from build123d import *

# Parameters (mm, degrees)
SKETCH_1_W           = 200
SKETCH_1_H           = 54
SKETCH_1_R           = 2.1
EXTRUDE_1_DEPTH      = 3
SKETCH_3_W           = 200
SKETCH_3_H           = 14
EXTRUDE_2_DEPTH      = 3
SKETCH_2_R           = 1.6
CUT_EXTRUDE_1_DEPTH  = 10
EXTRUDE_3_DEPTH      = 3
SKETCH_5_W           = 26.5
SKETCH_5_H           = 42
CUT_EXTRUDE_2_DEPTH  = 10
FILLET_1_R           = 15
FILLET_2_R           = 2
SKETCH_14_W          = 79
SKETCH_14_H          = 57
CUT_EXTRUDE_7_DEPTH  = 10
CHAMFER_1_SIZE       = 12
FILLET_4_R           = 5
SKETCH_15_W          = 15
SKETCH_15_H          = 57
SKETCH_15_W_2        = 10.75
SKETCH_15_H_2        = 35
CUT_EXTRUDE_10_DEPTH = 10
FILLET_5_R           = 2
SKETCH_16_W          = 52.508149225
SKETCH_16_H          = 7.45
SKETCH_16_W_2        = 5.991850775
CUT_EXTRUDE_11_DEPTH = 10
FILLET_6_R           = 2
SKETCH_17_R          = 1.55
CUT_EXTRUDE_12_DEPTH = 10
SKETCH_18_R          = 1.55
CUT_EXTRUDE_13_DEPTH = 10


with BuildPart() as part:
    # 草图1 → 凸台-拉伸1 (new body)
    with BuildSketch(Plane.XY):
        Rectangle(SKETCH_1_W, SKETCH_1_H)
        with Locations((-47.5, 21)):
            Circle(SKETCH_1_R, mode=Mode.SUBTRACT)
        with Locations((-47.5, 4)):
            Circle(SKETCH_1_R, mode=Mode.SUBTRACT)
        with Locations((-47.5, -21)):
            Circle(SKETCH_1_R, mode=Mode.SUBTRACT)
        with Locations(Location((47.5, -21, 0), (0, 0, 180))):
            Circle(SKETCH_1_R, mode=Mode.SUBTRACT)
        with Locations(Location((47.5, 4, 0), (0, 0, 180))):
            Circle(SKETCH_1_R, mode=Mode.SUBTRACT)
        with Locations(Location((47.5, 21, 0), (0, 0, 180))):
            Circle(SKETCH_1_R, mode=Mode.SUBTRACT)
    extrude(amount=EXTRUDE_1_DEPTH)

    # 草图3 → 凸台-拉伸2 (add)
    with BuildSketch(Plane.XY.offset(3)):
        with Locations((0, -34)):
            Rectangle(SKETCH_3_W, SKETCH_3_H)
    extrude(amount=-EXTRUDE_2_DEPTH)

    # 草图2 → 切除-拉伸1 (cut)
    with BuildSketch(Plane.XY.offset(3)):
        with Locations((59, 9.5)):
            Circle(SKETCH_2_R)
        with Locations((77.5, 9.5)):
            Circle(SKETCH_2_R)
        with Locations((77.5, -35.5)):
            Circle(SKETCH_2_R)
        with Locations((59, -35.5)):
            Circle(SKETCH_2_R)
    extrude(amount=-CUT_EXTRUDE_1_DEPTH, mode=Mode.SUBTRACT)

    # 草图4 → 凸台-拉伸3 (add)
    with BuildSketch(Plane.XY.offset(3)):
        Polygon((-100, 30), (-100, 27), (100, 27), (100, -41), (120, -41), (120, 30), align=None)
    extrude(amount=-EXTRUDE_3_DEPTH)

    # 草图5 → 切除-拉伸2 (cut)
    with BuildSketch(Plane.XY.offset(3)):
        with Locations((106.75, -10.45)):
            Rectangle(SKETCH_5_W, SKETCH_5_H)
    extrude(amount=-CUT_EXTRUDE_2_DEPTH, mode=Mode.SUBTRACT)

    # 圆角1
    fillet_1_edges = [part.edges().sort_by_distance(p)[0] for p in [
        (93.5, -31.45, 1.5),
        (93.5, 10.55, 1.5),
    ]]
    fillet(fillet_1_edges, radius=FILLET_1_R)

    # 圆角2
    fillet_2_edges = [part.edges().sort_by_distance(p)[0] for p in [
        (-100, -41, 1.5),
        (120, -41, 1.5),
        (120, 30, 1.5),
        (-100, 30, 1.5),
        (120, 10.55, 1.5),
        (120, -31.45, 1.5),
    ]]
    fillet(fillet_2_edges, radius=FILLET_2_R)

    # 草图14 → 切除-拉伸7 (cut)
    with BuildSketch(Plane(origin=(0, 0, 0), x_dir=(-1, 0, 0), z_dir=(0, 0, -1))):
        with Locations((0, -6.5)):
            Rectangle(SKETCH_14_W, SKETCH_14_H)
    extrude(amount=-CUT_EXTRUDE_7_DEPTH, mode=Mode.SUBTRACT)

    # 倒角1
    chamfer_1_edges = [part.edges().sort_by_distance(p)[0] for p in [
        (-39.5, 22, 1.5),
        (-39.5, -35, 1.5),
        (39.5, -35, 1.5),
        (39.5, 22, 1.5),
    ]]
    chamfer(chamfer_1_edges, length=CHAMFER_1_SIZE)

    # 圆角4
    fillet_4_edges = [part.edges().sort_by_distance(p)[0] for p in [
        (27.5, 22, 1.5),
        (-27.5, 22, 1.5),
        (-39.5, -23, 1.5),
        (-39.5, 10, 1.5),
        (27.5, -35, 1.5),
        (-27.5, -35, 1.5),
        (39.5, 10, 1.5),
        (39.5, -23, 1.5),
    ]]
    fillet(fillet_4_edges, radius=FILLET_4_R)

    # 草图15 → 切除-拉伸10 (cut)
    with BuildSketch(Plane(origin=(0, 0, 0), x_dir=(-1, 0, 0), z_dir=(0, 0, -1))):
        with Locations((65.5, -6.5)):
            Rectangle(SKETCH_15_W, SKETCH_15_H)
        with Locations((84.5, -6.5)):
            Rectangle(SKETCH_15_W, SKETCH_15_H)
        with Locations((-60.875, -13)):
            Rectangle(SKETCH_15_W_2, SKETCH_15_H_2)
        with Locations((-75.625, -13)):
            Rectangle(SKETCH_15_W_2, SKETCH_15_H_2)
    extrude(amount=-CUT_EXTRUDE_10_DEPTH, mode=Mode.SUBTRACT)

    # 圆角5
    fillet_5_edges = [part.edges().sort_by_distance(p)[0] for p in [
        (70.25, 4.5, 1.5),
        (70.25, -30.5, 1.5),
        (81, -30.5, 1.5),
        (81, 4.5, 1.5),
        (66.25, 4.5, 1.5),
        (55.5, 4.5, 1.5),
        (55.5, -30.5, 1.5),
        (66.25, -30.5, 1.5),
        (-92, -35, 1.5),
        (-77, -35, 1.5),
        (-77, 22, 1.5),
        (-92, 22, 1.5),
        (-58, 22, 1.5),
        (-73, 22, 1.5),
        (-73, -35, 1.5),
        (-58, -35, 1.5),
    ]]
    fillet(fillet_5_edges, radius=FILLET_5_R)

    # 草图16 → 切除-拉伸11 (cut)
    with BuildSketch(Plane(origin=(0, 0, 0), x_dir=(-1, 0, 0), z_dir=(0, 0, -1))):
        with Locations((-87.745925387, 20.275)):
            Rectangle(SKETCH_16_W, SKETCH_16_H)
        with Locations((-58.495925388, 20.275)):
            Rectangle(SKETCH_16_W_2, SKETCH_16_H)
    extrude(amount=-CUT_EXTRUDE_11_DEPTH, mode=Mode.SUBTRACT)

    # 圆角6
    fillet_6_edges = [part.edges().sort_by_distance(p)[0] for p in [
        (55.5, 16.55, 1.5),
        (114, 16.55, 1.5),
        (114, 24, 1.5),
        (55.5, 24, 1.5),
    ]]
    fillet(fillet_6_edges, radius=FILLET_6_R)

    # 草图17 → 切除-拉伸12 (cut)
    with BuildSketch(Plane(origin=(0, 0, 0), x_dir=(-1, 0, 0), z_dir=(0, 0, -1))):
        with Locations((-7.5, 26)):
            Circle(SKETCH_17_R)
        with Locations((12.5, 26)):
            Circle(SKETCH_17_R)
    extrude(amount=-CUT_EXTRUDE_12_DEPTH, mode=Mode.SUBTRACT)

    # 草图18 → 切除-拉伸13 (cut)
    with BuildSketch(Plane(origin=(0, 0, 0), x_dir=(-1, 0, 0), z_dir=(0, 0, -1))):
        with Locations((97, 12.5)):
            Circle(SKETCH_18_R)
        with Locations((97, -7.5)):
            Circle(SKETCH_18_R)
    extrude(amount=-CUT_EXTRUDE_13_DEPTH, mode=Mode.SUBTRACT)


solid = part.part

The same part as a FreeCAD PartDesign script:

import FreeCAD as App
import Part
import Sketcher
from FreeCAD import Vector
Q = App.Units.Quantity


def edges_at(feature, points):
    """Names of the edges that pass closest to the given points."""
    edges = feature.Shape.Edges
    near = lambda p: min(range(len(edges)), key=lambda i: edges[i].distToShape(Part.Vertex(*p))[0])
    return sorted({f"Edge{near(p) + 1}" for p in points})


def add_polygon(sketch, points):
    """Adds a closed chain of lines whose ends are joined by coincident constraints."""
    first, n = sketch.GeometryCount, len(points)
    for a, b in zip(points, points[1:] + points[:1]):
        sketch.addGeometry(Part.LineSegment(App.Vector(*a, 0), App.Vector(*b, 0)), False)
    for i in range(n):
        sketch.addConstraint(Sketcher.Constraint("Coincident", first + i, 2, first + (i + 1) % n, 1))

doc = App.newDocument("Part")
params = doc.addObject("Spreadsheet::Sheet", "Params")
for row, (alias, value) in enumerate([
    ("sketch1_diameter", "4.2 mm"),
    ("sketch1_width", "200 mm"),
    ("sketch1_height", "54 mm"),
    ("pad1_length", "3 mm"),
    ("sketch2_width", "200 mm"),
    ("sketch2_height", "14 mm"),
    ("pad2_length", "3 mm"),
    ("sketch3_diameter", "3.2 mm"),
    ("pocket1_length", "10 mm"),
    ("sketch4_width", "200 mm"),
    ("sketch4_width2", "20 mm"),
    ("sketch4_height", "3 mm"),
    ("sketch4_height2", "68 mm"),
    ("pad3_length", "3 mm"),
    ("sketch5_height", "42 mm"),
    ("sketch5_width", "26.5 mm"),
    ("pocket2_length", "10 mm"),
    ("fillet_radius", "15 mm"),
    ("fillet2_radius", "2 mm"),
    ("sketch6_width", "79 mm"),
    ("sketch6_height", "57 mm"),
    ("pocket3_length", "10 mm"),
    ("chamfer_size", "12 mm"),
    ("fillet3_radius", "5 mm"),
    ("sketch7_width", "15 mm"),
    ("sketch7_height", "57 mm"),
    ("sketch7_height2", "35 mm"),
    ("sketch7_width2", "10.75 mm"),
    ("pocket4_length", "10 mm"),
    ("fillet4_radius", "2 mm"),
    ("sketch8_width", "58.5 mm"),
    ("sketch8_height", "7.45 mm"),
    ("pocket5_length", "10 mm"),
    ("fillet5_radius", "2 mm"),
    ("sketch9_diameter", "3.1 mm"),
    ("pocket6_length", "10 mm"),
    ("sketch10_diameter", "3.1 mm"),
    ("pocket7_length", "10 mm"),
], start=1):
    params.set(f"A{row}", alias)
    params.set(f"B{row}", "=" + value)
    params.setAlias(f"B{row}", alias)

body = doc.addObject("PartDesign::Body", "Body")

sketch1 = doc.addObject("Sketcher::SketchObject", "Sketch")
body.addObject(sketch1)
sketch1.AttachmentSupport = (doc.XY_Plane, [""])
sketch1.MapMode = "FlatFace"
add_polygon(sketch1, [(-100, 27), (-100, -27), (100, -27), (100, 27)])
sketch1.addGeometry(Part.Circle(Vector(-47.5, -21, 0), Vector(0, 0, 1), 2.1), False)
sketch1.addGeometry(Part.Circle(Vector(47.5, -21, 0), Vector(0, 0, 1), 2.1), False)
sketch1.addGeometry(Part.Circle(Vector(-47.5, 4, 0), Vector(0, 0, 1), 2.1), False)
sketch1.addGeometry(Part.Circle(Vector(-47.5, 21, 0), Vector(0, 0, 1), 2.1), False)
sketch1.addGeometry(Part.Circle(Vector(47.5, 4, 0), Vector(0, 0, 1), 2.1), False)
sketch1.addGeometry(Part.Circle(Vector(47.5, 21, 0), Vector(0, 0, 1), 2.1), False)
sketch1.addConstraint([
    Sketcher.Constraint("Vertical", 0),
    Sketcher.Constraint("Horizontal", 1),
    Sketcher.Constraint("Vertical", 2),
    Sketcher.Constraint("Horizontal", 3),
    Sketcher.Constraint("Equal", 4, 5),
    Sketcher.Constraint("Equal", 5, 6),
    Sketcher.Constraint("Equal", 6, 7),
    Sketcher.Constraint("Equal", 7, 8),
    Sketcher.Constraint("Equal", 8, 9),
    Sketcher.Constraint("Symmetric", 5, 3, 7, 3, -1, 1),
    Sketcher.Constraint("Symmetric", 4, 3, 9, 3, -1, 1),
    Sketcher.Constraint("Symmetric", 0, 2, 2, 2, -1, 1),
    Sketcher.Constraint("Symmetric", 4, 3, 5, 3, -2),
    Sketcher.Constraint("Symmetric", 6, 3, 8, 3, -2),
    Sketcher.Constraint("Vertical", 4, 3, 6, 3),
    Sketcher.Constraint("Diameter", 4, Q("4.2 mm")),
    Sketcher.Constraint("DistanceX", 1, 1, 1, 2, Q("200 mm")),
    Sketcher.Constraint("DistanceY", 0, 2, 0, 1, Q("54 mm")),
    Sketcher.Constraint("DistanceY", 4, 3, -1, 1, Q("21 mm")),
    Sketcher.Constraint("DistanceY", -1, 1, 6, 3, Q("4 mm")),
    Sketcher.Constraint("DistanceX", 4, 3, 5, 3, Q("95 mm")),
])
sketch1.setExpression("Constraints[19]", "Params.sketch1_diameter")
sketch1.setExpression("Constraints[20]", "Params.sketch1_width")
sketch1.setExpression("Constraints[21]", "Params.sketch1_height")
pad1 = doc.addObject("PartDesign::Pad", "Pad")
body.addObject(pad1)
pad1.Profile = sketch1
pad1.setExpression("Length", "Params.pad1_length")

sketch2 = doc.addObject("Sketcher::SketchObject", "Sketch001")
body.addObject(sketch2)
sketch2.AttachmentSupport = (doc.XY_Plane, [""])
sketch2.MapMode = "FlatFace"
sketch2.AttachmentOffset = App.Placement(Vector(0, 0, 3), App.Rotation())
add_polygon(sketch2, [(-100, -27), (-100, -41), (100, -41), (100, -27)])
sketch2.addConstraint([
    Sketcher.Constraint("Vertical", 0),
    Sketcher.Constraint("Horizontal", 1),
    Sketcher.Constraint("Vertical", 2),
    Sketcher.Constraint("Horizontal", 3),
    Sketcher.Constraint("DistanceX", 1, 1, 1, 2, Q("200 mm")),
    Sketcher.Constraint("DistanceY", 0, 2, 0, 1, Q("14 mm")),
    Sketcher.Constraint("DistanceX", 0, 2, -1, 1, Q("100 mm")),
    Sketcher.Constraint("DistanceY", 0, 2, -1, 1, Q("41 mm")),
])
sketch2.setExpression("Constraints[8]", "Params.sketch2_width")
sketch2.setExpression("Constraints[9]", "Params.sketch2_height")
pad2 = doc.addObject("PartDesign::Pad", "Pad001")
body.addObject(pad2)
pad2.Profile = sketch2
pad2.setExpression("Length", "Params.pad2_length")
pad2.Reversed = True

sketch3 = doc.addObject("Sketcher::SketchObject", "Sketch002")
body.addObject(sketch3)
sketch3.AttachmentSupport = (doc.XY_Plane, [""])
sketch3.MapMode = "FlatFace"
sketch3.AttachmentOffset = App.Placement(Vector(0, 0, 3), App.Rotation())
sketch3.addGeometry([
    Part.Circle(Vector(59, 9.5, 0), Vector(0, 0, 1), 1.6),
    Part.Circle(Vector(77.5, 9.5, 0), Vector(0, 0, 1), 1.6),
    Part.Circle(Vector(77.5, -35.5, 0), Vector(0, 0, 1), 1.6),
    Part.Circle(Vector(59, -35.5, 0), Vector(0, 0, 1), 1.6),
], False)
sketch3.addConstraint([
    Sketcher.Constraint("Equal", 0, 1),
    Sketcher.Constraint("Equal", 1, 2),
    Sketcher.Constraint("Equal", 2, 3),
    Sketcher.Constraint("Horizontal", 0, 3, 1, 3),
    Sketcher.Constraint("Horizontal", 2, 3, 3, 3),
    Sketcher.Constraint("Vertical", 1, 3, 2, 3),
    Sketcher.Constraint("Vertical", 0, 3, 3, 3),
    Sketcher.Constraint("Diameter", 0, Q("3.2 mm")),
    Sketcher.Constraint("DistanceX", -1, 1, 0, 3, Q("59 mm")),
    Sketcher.Constraint("DistanceY", 2, 3, 1, 3, Q("45 mm")),
    Sketcher.Constraint("DistanceY", -1, 1, 0, 3, Q("9.5 mm")),
    Sketcher.Constraint("DistanceX", -1, 1, 1, 3, Q("77.5 mm")),
])
sketch3.setExpression("Constraints[7]", "Params.sketch3_diameter")
pocket1 = doc.addObject("PartDesign::Pocket", "Pocket")
body.addObject(pocket1)
pocket1.Profile = sketch3
pocket1.setExpression("Length", "Params.pocket1_length")

sketch4 = doc.addObject("Sketcher::SketchObject", "Sketch003")
body.addObject(sketch4)
sketch4.AttachmentSupport = (doc.XY_Plane, [""])
sketch4.MapMode = "FlatFace"
sketch4.AttachmentOffset = App.Placement(Vector(0, 0, 3), App.Rotation())
add_polygon(sketch4, [(-100, 30), (-100, 27), (100, 27), (100, -41), (120, -41), (120, 30)])
sketch4.addConstraint([
    Sketcher.Constraint("Vertical", 0),
    Sketcher.Constraint("Horizontal", 1),
    Sketcher.Constraint("Vertical", 2),
    Sketcher.Constraint("Horizontal", 3),
    Sketcher.Constraint("Vertical", 4),
    Sketcher.Constraint("Horizontal", 5),
    Sketcher.Constraint("DistanceX", 1, 1, 1, 2, Q("200 mm")),
    Sketcher.Constraint("DistanceX", 3, 1, 3, 2, Q("20 mm")),
    Sketcher.Constraint("DistanceY", 0, 2, 0, 1, Q("3 mm")),
    Sketcher.Constraint("DistanceY", 2, 2, 2, 1, Q("68 mm")),
    Sketcher.Constraint("DistanceX", 0, 2, -1, 1, Q("100 mm")),
    Sketcher.Constraint("DistanceY", -1, 1, 0, 2, Q("27 mm")),
])
sketch4.setExpression("Constraints[12]", "Params.sketch4_width")
sketch4.setExpression("Constraints[13]", "Params.sketch4_width2")
sketch4.setExpression("Constraints[14]", "Params.sketch4_height")
sketch4.setExpression("Constraints[15]", "Params.sketch4_height2")
pad3 = doc.addObject("PartDesign::Pad", "Pad002")
body.addObject(pad3)
pad3.Profile = sketch4
pad3.setExpression("Length", "Params.pad3_length")
pad3.Reversed = True

sketch5 = doc.addObject("Sketcher::SketchObject", "Sketch004")
body.addObject(sketch5)
sketch5.AttachmentSupport = (doc.XY_Plane, [""])
sketch5.MapMode = "FlatFace"
sketch5.AttachmentOffset = App.Placement(Vector(0, 0, 3), App.Rotation())
add_polygon(sketch5, [(94, 11), (94, -31), (120, -31), (120, 11)])
sketch5.addConstraint([
    Sketcher.Constraint("Vertical", 0),
    Sketcher.Constraint("Horizontal", 1),
    Sketcher.Constraint("Vertical", 2),
    Sketcher.Constraint("Horizontal", 3),
    Sketcher.Constraint("DistanceY", 0, 2, 0, 1, Q("42 mm")),
    Sketcher.Constraint("DistanceX", 1, 1, 1, 2, Q("26.5 mm")),
    Sketcher.Constraint("DistanceX", -1, 1, 1, 2, Q("120 mm")),
    Sketcher.Constraint("DistanceY", 0, 2, -1, 1, Q("31.45 mm")),
])
sketch5.setExpression("Constraints[8]", "Params.sketch5_height")
sketch5.setExpression("Constraints[9]", "Params.sketch5_width")
pocket2 = doc.addObject("PartDesign::Pocket", "Pocket001")
body.addObject(pocket2)
pocket2.Profile = sketch5
pocket2.setExpression("Length", "Params.pocket2_length")
doc.recompute()

fillet = doc.addObject("PartDesign::Fillet", "Fillet")
body.addObject(fillet)
fillet.Base = (pocket2, edges_at(pocket2, [(93.5, -31.45, 1.5), (93.5, 10.55, 1.5)]))
fillet.setExpression("Radius", "Params.fillet_radius")
doc.recompute()

fillet2 = doc.addObject("PartDesign::Fillet", "Fillet001")
body.addObject(fillet2)
fillet2.Base = (fillet, edges_at(fillet, [
    (-100, -41, 1.5),
    (120, -41, 1.5),
    (120, 30, 1.5),
    (-100, 30, 1.5),
    (120, 10.55, 1.5),
    (120, -31.45, 1.5),
]))
fillet2.setExpression("Radius", "Params.fillet2_radius")

sketch6 = doc.addObject("Sketcher::SketchObject", "Sketch005")
body.addObject(sketch6)
sketch6.AttachmentSupport = (doc.XY_Plane, [""])
sketch6.MapMode = "FlatFace"
add_polygon(sketch6, [(40, 22), (40, -35), (-40, -35), (-40, 22)])
sketch6.addConstraint([
    Sketcher.Constraint("Vertical", 0),
    Sketcher.Constraint("Horizontal", 1),
    Sketcher.Constraint("Vertical", 2),
    Sketcher.Constraint("Horizontal", 3),
    Sketcher.Constraint("DistanceX", 1, 2, 1, 1, Q("79 mm")),
    Sketcher.Constraint("DistanceY", 0, 2, 0, 1, Q("57 mm")),
    Sketcher.Constraint("DistanceY", 0, 2, -1, 1, Q("35 mm")),
    Sketcher.Constraint("DistanceX", -1, 1, 0, 2, Q("39.5 mm")),
])
sketch6.setExpression("Constraints[8]", "Params.sketch6_width")
sketch6.setExpression("Constraints[9]", "Params.sketch6_height")
pocket3 = doc.addObject("PartDesign::Pocket", "Pocket002")
body.addObject(pocket3)
pocket3.Profile = sketch6
pocket3.setExpression("Length", "Params.pocket3_length")
pocket3.Reversed = True
doc.recompute()

chamfer = doc.addObject("PartDesign::Chamfer", "Chamfer")
body.addObject(chamfer)
chamfer.Base = (pocket3, edges_at(pocket3, [
    (-39.5, 22, 1.5),
    (-39.5, -35, 1.5),
    (39.5, -35, 1.5),
    (39.5, 22, 1.5),
]))
chamfer.setExpression("Size", "Params.chamfer_size")
doc.recompute()

fillet3 = doc.addObject("PartDesign::Fillet", "Fillet002")
body.addObject(fillet3)
fillet3.Base = (chamfer, edges_at(chamfer, [
    (27.5, 22, 1.5),
    (-27.5, 22, 1.5),
    (-39.5, -23, 1.5),
    (-39.5, 10, 1.5),
    (27.5, -35, 1.5),
    (-27.5, -35, 1.5),
    (39.5, 10, 1.5),
    (39.5, -23, 1.5),
]))
fillet3.setExpression("Radius", "Params.fillet3_radius")

sketch7 = doc.addObject("Sketcher::SketchObject", "Sketch006")
body.addObject(sketch7)
sketch7.AttachmentSupport = (doc.XY_Plane, [""])
sketch7.MapMode = "FlatFace"
add_polygon(sketch7, [(-58, 22), (-58, -35), (-73, -35), (-73, 22)])
add_polygon(sketch7, [(-77, 22), (-77, -35), (-92, -35), (-92, 22)])
add_polygon(sketch7, [(66, 4), (66, -30), (56, -30), (56, 4)])
add_polygon(sketch7, [(81, 4), (81, -30), (70, -30), (70, 4)])
sketch7.addConstraint([
    Sketcher.Constraint("Vertical", 0),
    Sketcher.Constraint("Horizontal", 1),
    Sketcher.Constraint("Vertical", 2),
    Sketcher.Constraint("Horizontal", 3),
    Sketcher.Constraint("Vertical", 4),
    Sketcher.Constraint("Horizontal", 5),
    Sketcher.Constraint("Vertical", 6),
    Sketcher.Constraint("Horizontal", 7),
    Sketcher.Constraint("Vertical", 8),
    Sketcher.Constraint("Horizontal", 9),
    Sketcher.Constraint("Vertical", 10),
    Sketcher.Constraint("Horizontal", 11),
    Sketcher.Constraint("Vertical", 12),
    Sketcher.Constraint("Horizontal", 13),
    Sketcher.Constraint("Vertical", 14),
    Sketcher.Constraint("Horizontal", 15),
    Sketcher.Constraint("Horizontal", 1, 2, 4, 2),
    Sketcher.Constraint("Horizontal", 3, 2, 6, 2),
    Sketcher.Constraint("Horizontal", 9, 2, 12, 2),
    Sketcher.Constraint("Horizontal", 11, 2, 14, 2),
    Sketcher.Constraint("Equal", 3, 5),
    Sketcher.Constraint("Equal", 11, 13),
    Sketcher.Constraint("DistanceX", 1, 2, 1, 1, Q("15 mm")),
    Sketcher.Constraint("DistanceY", 0, 2, 0, 1, Q("57 mm")),
    Sketcher.Constraint("DistanceY", 8, 2, 8, 1, Q("35 mm")),
    Sketcher.Constraint("DistanceX", 0, 2, -1, 1, Q("58 mm")),
    Sketcher.Constraint("DistanceY", 0, 2, -1, 1, Q("35 mm")),
    Sketcher.Constraint("DistanceX", 4, 2, -1, 1, Q("77 mm")),
    Sketcher.Constraint("DistanceX", -1, 1, 12, 2, Q("81 mm")),
    Sketcher.Constraint("DistanceX", 8, 2, 13, 2, Q("4 mm")),
    Sketcher.Constraint("DistanceX", 9, 2, 9, 1, Q("10.75 mm")),
    Sketcher.Constraint("DistanceY", 8, 2, -1, 1, Q("30.5 mm")),
])
sketch7.setExpression("Constraints[38]", "Params.sketch7_width")
sketch7.setExpression("Constraints[39]", "Params.sketch7_height")
sketch7.setExpression("Constraints[40]", "Params.sketch7_height2")
sketch7.setExpression("Constraints[46]", "Params.sketch7_width2")
pocket4 = doc.addObject("PartDesign::Pocket", "Pocket003")
body.addObject(pocket4)
pocket4.Profile = sketch7
pocket4.setExpression("Length", "Params.pocket4_length")
pocket4.Reversed = True
doc.recompute()

fillet4 = doc.addObject("PartDesign::Fillet", "Fillet003")
body.addObject(fillet4)
fillet4.Base = (pocket4, edges_at(pocket4, [
    (70.25, 4.5, 1.5),
    (70.25, -30.5, 1.5),
    (81, -30.5, 1.5),
    (81, 4.5, 1.5),
    (66.25, 4.5, 1.5),
    (55.5, 4.5, 1.5),
    (55.5, -30.5, 1.5),
    (66.25, -30.5, 1.5),
    (-92, -35, 1.5),
    (-77, -35, 1.5),
    (-77, 22, 1.5),
    (-92, 22, 1.5),
    (-58, 22, 1.5),
    (-73, 22, 1.5),
    (-73, -35, 1.5),
    (-58, -35, 1.5),
]))
fillet4.setExpression("Radius", "Params.fillet4_radius")

sketch8 = doc.addObject("Sketcher::SketchObject", "Sketch007")
body.addObject(sketch8)
sketch8.AttachmentSupport = (doc.XY_Plane, [""])
sketch8.MapMode = "FlatFace"
add_polygon(sketch8, [(114, 24), (114, 17), (56, 17), (56, 24)])
sketch8.addConstraint([
    Sketcher.Constraint("Vertical", 0),
    Sketcher.Constraint("Horizontal", 1),
    Sketcher.Constraint("Vertical", 2),
    Sketcher.Constraint("Horizontal", 3),
    Sketcher.Constraint("DistanceX", 1, 2, 1, 1, Q("58.5 mm")),
    Sketcher.Constraint("DistanceX", -1, 1, 0, 2, Q("114 mm")),
    Sketcher.Constraint("DistanceY", -1, 1, 2, 2, Q("24 mm")),
    Sketcher.Constraint("DistanceY", 0, 2, 0, 1, Q("7.45 mm")),
])
sketch8.setExpression("Constraints[8]", "Params.sketch8_width")
sketch8.setExpression("Constraints[11]", "Params.sketch8_height")
pocket5 = doc.addObject("PartDesign::Pocket", "Pocket004")
body.addObject(pocket5)
pocket5.Profile = sketch8
pocket5.setExpression("Length", "Params.pocket5_length")
pocket5.Reversed = True
doc.recompute()

fillet5 = doc.addObject("PartDesign::Fillet", "Fillet004")
body.addObject(fillet5)
fillet5.Base = (pocket5, edges_at(pocket5, [
    (55.5, 16.55, 1.5),
    (114, 16.55, 1.5),
    (114, 24, 1.5),
    (55.5, 24, 1.5),
]))
fillet5.setExpression("Radius", "Params.fillet5_radius")

sketch9 = doc.addObject("Sketcher::SketchObject", "Sketch008")
body.addObject(sketch9)
sketch9.AttachmentSupport = (doc.XY_Plane, [""])
sketch9.MapMode = "FlatFace"
sketch9.addGeometry([
    Part.Circle(Vector(7.5, 26, 0), Vector(0, 0, 1), 1.6),
    Part.Circle(Vector(-12.5, 26, 0), Vector(0, 0, 1), 1.6),
], False)
sketch9.addConstraint([
    Sketcher.Constraint("Equal", 0, 1),
    Sketcher.Constraint("Horizontal", 0, 3, 1, 3),
    Sketcher.Constraint("Diameter", 0, Q("3.1 mm")),
    Sketcher.Constraint("DistanceY", -1, 1, 0, 3, Q("26 mm")),
    Sketcher.Constraint("DistanceX", 1, 3, 0, 3, Q("20 mm")),
    Sketcher.Constraint("DistanceX", -1, 1, 0, 3, Q("7.5 mm")),
])
sketch9.setExpression("Constraints[2]", "Params.sketch9_diameter")
pocket6 = doc.addObject("PartDesign::Pocket", "Pocket005")
body.addObject(pocket6)
pocket6.Profile = sketch9
pocket6.setExpression("Length", "Params.pocket6_length")
pocket6.Reversed = True

sketch10 = doc.addObject("Sketcher::SketchObject", "Sketch009")
body.addObject(sketch10)
sketch10.AttachmentSupport = (doc.XY_Plane, [""])
sketch10.MapMode = "FlatFace"
sketch10.addGeometry([
    Part.Circle(Vector(-97, 12.5, 0), Vector(0, 0, 1), 1.6),
    Part.Circle(Vector(-97, -7.5, 0), Vector(0, 0, 1), 1.6),
], False)
sketch10.addConstraint([
    Sketcher.Constraint("Equal", 0, 1),
    Sketcher.Constraint("Vertical", 0, 3, 1, 3),
    Sketcher.Constraint("Diameter", 0, Q("3.1 mm")),
    Sketcher.Constraint("DistanceX", 0, 3, -1, 1, Q("97 mm")),
    Sketcher.Constraint("DistanceY", 1, 3, 0, 3, Q("20 mm")),
    Sketcher.Constraint("DistanceY", -1, 1, 0, 3, Q("12.5 mm")),
])
sketch10.setExpression("Constraints[2]", "Params.sketch10_diameter")
pocket7 = doc.addObject("PartDesign::Pocket", "Pocket006")
body.addObject(pocket7)
pocket7.Profile = sketch10
pocket7.setExpression("Length", "Params.pocket7_length")
pocket7.Reversed = True

doc.recompute()
